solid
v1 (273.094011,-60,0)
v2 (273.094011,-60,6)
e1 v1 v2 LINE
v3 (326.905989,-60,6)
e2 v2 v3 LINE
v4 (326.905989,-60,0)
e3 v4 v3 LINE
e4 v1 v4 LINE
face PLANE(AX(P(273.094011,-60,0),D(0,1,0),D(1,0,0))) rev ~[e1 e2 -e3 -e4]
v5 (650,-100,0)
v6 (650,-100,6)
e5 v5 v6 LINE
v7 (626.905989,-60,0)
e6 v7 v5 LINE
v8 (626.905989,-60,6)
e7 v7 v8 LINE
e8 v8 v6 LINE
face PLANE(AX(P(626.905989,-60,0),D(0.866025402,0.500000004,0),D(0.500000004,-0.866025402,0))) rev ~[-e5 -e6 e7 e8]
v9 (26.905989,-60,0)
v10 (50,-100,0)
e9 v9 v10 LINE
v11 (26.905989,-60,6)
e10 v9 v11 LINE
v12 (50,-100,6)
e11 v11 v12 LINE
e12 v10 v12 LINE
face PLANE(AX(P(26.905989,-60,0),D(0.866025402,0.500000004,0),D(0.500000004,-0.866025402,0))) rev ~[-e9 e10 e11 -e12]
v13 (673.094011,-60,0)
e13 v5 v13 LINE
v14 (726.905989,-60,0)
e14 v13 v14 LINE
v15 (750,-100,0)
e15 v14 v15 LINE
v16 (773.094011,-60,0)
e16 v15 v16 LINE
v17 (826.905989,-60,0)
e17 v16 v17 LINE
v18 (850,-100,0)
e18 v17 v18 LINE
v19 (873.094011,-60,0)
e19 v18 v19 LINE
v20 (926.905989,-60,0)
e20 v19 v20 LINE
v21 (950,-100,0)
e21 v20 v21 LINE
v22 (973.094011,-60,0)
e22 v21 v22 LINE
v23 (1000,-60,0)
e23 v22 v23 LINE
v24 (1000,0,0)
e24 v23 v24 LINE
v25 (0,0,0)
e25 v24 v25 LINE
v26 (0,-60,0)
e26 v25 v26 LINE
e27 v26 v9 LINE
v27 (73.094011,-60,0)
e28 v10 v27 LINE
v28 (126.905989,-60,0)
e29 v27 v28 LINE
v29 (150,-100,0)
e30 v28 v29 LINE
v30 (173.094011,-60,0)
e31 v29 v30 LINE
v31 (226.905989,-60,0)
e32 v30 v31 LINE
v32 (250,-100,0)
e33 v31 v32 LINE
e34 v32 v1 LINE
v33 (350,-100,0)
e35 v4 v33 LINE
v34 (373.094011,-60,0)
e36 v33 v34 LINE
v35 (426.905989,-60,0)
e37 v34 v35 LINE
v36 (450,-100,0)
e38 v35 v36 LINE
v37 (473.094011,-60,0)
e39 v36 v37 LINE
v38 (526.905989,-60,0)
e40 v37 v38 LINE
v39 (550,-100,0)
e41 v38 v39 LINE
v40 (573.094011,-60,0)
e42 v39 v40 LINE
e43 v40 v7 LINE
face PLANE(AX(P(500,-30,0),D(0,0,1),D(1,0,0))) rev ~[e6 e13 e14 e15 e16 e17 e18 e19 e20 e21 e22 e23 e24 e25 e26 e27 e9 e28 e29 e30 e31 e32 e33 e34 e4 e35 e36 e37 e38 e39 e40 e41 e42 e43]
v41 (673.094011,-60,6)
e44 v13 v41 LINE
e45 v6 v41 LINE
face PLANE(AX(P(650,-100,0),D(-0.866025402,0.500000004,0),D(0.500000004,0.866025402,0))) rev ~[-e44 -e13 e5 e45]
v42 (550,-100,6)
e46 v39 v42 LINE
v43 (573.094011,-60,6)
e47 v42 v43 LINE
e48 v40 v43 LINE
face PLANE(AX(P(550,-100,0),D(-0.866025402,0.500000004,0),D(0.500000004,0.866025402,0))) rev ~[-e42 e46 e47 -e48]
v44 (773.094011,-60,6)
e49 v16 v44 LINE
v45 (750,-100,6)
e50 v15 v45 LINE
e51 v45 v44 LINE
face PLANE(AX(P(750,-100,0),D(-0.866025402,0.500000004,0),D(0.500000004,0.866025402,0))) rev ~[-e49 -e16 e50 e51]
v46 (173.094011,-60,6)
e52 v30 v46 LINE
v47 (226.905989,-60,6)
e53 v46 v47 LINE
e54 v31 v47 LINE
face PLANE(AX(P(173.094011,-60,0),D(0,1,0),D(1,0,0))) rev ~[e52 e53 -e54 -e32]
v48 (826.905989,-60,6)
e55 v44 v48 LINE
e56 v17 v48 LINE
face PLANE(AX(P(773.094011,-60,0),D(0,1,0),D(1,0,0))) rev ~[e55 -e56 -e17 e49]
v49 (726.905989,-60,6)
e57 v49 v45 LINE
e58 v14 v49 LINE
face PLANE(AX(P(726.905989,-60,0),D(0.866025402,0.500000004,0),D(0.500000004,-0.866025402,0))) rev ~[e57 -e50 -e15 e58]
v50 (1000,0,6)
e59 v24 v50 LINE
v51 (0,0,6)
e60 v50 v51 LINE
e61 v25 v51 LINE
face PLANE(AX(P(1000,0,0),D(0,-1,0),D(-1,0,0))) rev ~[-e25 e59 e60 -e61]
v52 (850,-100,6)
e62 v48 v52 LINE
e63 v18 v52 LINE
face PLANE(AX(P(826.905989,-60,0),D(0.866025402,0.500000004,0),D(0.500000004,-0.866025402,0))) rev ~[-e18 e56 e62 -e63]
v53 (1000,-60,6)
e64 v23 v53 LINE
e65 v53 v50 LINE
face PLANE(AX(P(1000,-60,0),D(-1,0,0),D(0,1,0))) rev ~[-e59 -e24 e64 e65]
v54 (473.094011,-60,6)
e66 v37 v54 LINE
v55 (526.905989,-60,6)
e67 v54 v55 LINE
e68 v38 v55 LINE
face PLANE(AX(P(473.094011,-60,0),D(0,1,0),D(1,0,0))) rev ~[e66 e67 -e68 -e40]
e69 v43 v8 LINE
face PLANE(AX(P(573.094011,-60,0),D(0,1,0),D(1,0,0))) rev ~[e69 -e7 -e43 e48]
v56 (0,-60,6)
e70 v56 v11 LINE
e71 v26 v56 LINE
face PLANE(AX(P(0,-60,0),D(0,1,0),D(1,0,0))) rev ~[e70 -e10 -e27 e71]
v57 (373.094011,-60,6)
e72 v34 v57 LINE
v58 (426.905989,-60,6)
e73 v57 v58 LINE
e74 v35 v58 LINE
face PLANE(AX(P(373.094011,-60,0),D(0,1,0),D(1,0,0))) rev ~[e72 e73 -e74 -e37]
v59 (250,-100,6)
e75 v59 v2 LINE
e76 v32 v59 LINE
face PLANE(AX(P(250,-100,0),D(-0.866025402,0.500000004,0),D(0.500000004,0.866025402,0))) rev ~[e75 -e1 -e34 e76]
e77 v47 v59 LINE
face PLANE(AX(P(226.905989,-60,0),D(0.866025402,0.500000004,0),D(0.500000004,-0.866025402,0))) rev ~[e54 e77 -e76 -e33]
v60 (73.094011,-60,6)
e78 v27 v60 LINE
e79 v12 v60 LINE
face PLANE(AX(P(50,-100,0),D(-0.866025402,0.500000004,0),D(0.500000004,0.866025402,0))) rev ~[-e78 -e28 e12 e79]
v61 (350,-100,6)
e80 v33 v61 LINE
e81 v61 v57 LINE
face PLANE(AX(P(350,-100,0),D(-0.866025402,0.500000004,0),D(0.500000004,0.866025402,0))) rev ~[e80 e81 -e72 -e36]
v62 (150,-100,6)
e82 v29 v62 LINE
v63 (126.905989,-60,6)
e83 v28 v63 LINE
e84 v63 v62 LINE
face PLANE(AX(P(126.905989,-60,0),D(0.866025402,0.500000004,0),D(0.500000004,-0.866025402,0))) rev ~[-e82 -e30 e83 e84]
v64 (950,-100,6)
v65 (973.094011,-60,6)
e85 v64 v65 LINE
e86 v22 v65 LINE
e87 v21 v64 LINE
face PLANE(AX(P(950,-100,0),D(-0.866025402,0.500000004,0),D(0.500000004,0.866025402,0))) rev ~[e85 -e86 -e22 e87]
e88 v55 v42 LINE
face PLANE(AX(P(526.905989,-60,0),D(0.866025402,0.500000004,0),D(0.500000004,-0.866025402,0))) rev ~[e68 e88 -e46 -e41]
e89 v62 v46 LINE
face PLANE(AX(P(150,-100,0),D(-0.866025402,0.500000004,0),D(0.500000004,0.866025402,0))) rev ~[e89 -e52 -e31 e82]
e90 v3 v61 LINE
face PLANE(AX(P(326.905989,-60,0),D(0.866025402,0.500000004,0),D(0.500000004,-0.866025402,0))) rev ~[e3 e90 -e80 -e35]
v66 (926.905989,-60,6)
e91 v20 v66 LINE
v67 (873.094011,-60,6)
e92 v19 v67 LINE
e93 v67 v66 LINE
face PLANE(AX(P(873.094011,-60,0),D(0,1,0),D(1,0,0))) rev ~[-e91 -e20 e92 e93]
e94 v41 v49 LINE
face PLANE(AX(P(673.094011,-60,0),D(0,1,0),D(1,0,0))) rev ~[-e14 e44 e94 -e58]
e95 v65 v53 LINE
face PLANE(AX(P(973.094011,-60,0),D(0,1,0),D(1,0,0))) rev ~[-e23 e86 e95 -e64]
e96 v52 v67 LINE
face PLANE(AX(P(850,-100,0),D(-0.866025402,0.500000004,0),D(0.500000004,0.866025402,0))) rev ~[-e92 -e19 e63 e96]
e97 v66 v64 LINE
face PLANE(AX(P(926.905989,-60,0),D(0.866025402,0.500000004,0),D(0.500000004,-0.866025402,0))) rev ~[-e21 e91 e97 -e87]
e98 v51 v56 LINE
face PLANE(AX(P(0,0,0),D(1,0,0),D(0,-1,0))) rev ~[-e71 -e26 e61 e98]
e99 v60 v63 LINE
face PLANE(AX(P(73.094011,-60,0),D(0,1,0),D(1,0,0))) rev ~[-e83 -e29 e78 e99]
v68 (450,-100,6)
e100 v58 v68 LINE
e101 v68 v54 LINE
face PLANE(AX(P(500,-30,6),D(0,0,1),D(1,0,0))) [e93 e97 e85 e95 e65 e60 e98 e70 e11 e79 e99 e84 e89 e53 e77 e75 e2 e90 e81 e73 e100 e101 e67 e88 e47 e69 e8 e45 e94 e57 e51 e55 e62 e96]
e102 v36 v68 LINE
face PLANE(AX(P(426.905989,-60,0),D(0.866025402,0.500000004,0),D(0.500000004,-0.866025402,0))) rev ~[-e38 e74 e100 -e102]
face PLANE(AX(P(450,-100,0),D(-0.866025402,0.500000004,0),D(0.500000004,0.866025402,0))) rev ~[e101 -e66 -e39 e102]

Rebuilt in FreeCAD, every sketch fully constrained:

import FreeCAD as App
import Part
import Sketcher
Q = App.Units.Quantity

doc = App.newDocument("Part")
body = doc.addObject("PartDesign::Body", "Body")

sketch1 = body.newObject("Sketcher::SketchObject", "Sketch")
sketch1.AttachmentSupport = (doc.getObject("XY_Plane"), [""])
sketch1.MapMode = "FlatFace"
sketch1.addGeometry(Part.LineSegment(App.Vector(1000, 0, 0), App.Vector(0, 0, 0)), False)
sketch1.addGeometry(Part.LineSegment(App.Vector(0, 0, 0), App.Vector(0, -60, 0)), False)
sketch1.addGeometry(Part.LineSegment(App.Vector(0, -60, 0), App.Vector(27, -60, 0)), False)
sketch1.addGeometry(Part.LineSegment(App.Vector(27, -60, 0), App.Vector(50, -100, 0)), False)
sketch1.addGeometry(Part.LineSegment(App.Vector(50, -100, 0), App.Vector(73, -60, 0)), False)
sketch1.addGeometry(Part.LineSegment(App.Vector(73, -60, 0), App.Vector(127, -60, 0)), False)
sketch1.addGeometry(Part.LineSegment(App.Vector(127, -60, 0), App.Vector(150, -100, 0)), False)
sketch1.addGeometry(Part.LineSegment(App.Vector(150, -100, 0), App.Vector(173, -60, 0)), False)
sketch1.addGeometry(Part.LineSegment(App.Vector(173, -60, 0), App.Vector(227, -60, 0)), False)
sketch1.addGeometry(Part.LineSegment(App.Vector(227, -60, 0), App.Vector(250, -100, 0)), False)
sketch1.addGeometry(Part.LineSegment(App.Vector(250, -100, 0), App.Vector(273, -60, 0)), False)
sketch1.addGeometry(Part.LineSegment(App.Vector(273, -60, 0), App.Vector(327, -60, 0)), False)
sketch1.addGeometry(Part.LineSegment(App.Vector(327, -60, 0), App.Vector(350, -100, 0)), False)
sketch1.addGeometry(Part.LineSegment(App.Vector(350, -100, 0), App.Vector(373, -60, 0)), False)
sketch1.addGeometry(Part.LineSegment(App.Vector(373, -60, 0), App.Vector(427, -60, 0)), False)
sketch1.addGeometry(Part.LineSegment(App.Vector(427, -60, 0), App.Vector(450, -100, 0)), False)
sketch1.addGeometry(Part.LineSegment(App.Vector(450, -100, 0), App.Vector(473, -60, 0)), False)
sketch1.addGeometry(Part.LineSegment(App.Vector(473, -60, 0), App.Vector(527, -60, 0)), False)
sketch1.addGeometry(Part.LineSegment(App.Vector(527, -60, 0), App.Vector(550, -100, 0)), False)
sketch1.addGeometry(Part.LineSegment(App.Vector(550, -100, 0), App.Vector(573, -60, 0)), False)
sketch1.addGeometry(Part.LineSegment(App.Vector(573, -60, 0), App.Vector(627, -60, 0)), False)
sketch1.addGeometry(Part.LineSegment(App.Vector(627, -60, 0), App.Vector(650, -100, 0)), False)
sketch1.addGeometry(Part.LineSegment(App.Vector(650, -100, 0), App.Vector(673, -60, 0)), False)
sketch1.addGeometry(Part.LineSegment(App.Vector(673, -60, 0), App.Vector(727, -60, 0)), False)
sketch1.addGeometry(Part.LineSegment(App.Vector(727, -60, 0), App.Vector(750, -100, 0)), False)
sketch1.addGeometry(Part.LineSegment(App.Vector(750, -100, 0), App.Vector(773, -60, 0)), False)
sketch1.addGeometry(Part.LineSegment(App.Vector(773, -60, 0), App.Vector(827, -60, 0)), False)
sketch1.addGeometry(Part.LineSegment(App.Vector(827, -60, 0), App.Vector(850, -100, 0)), False)
sketch1.addGeometry(Part.LineSegment(App.Vector(850, -100, 0), App.Vector(873, -60, 0)), False)
sketch1.addGeometry(Part.LineSegment(App.Vector(873, -60, 0), App.Vector(927, -60, 0)), False)
sketch1.addGeometry(Part.LineSegment(App.Vector(927, -60, 0), App.Vector(950, -100, 0)), False)
sketch1.addGeometry(Part.LineSegment(App.Vector(950, -100, 0), App.Vector(973, -60, 0)), False)
sketch1.addGeometry(Part.LineSegment(App.Vector(973, -60, 0), App.Vector(1000, -60, 0)), False)
sketch1.addGeometry(Part.LineSegment(App.Vector(1000, -60, 0), App.Vector(1000, 0, 0)), False)
sketch1.addConstraint(Sketcher.Constraint("Coincident", 0, 2, 1, 1))
sketch1.addConstraint(Sketcher.Constraint("Coincident", 1, 2, 2, 1))
sketch1.addConstraint(Sketcher.Constraint("Coincident", 2, 2, 3, 1))
sketch1.addConstraint(Sketcher.Constraint("Coincident", 3, 2, 4, 1))
sketch1.addConstraint(Sketcher.Constraint("Coincident", 4, 2, 5, 1))
sketch1.addConstraint(Sketcher.Constraint("Coincident", 5, 2, 6, 1))
sketch1.addConstraint(Sketcher.Constraint("Coincident", 6, 2, 7, 1))
sketch1.addConstraint(Sketcher.Constraint("Coincident", 7, 2, 8, 1))
sketch1.addConstraint(Sketcher.Constraint("Coincident", 8, 2, 9, 1))
sketch1.addConstraint(Sketcher.Constraint("Coincident", 9, 2, 10, 1))
sketch1.addConstraint(Sketcher.Constraint("Coincident", 10, 2, 11, 1))
sketch1.addConstraint(Sketcher.Constraint("Coincident", 11, 2, 12, 1))
sketch1.addConstraint(Sketcher.Constraint("Coincident", 12, 2, 13, 1))
sketch1.addConstraint(Sketcher.Constraint("Coincident", 13, 2, 14, 1))
sketch1.addConstraint(Sketcher.Constraint("Coincident", 14, 2, 15, 1))
sketch1.addConstraint(Sketcher.Constraint("Coincident", 15, 2, 16, 1))
sketch1.addConstraint(Sketcher.Constraint("Coincident", 16, 2, 17, 1))
sketch1.addConstraint(Sketcher.Constraint("Coincident", 17, 2, 18, 1))
sketch1.addConstraint(Sketcher.Constraint("Coincident", 18, 2, 19, 1))
sketch1.addConstraint(Sketcher.Constraint("Coincident", 19, 2, 20, 1))
sketch1.addConstraint(Sketcher.Constraint("Coincident", 20, 2, 21, 1))
sketch1.addConstraint(Sketcher.Constraint("Coincident", 21, 2, 22, 1))
sketch1.addConstraint(Sketcher.Constraint("Coincident", 22, 2, 23, 1))
sketch1.addConstraint(Sketcher.Constraint("Coincident", 23, 2, 24, 1))
sketch1.addConstraint(Sketcher.Constraint("Coincident", 24, 2, 25, 1))
sketch1.addConstraint(Sketcher.Constraint("Coincident", 25, 2, 26, 1))
sketch1.addConstraint(Sketcher.Constraint("Coincident", 26, 2, 27, 1))
sketch1.addConstraint(Sketcher.Constraint("Coincident", 27, 2, 28, 1))
sketch1.addConstraint(Sketcher.Constraint("Coincident", 28, 2, 29, 1))
sketch1.addConstraint(Sketcher.Constraint("Coincident", 29, 2, 30, 1))
sketch1.addConstraint(Sketcher.Constraint("Coincident", 30, 2, 31, 1))
sketch1.addConstraint(Sketcher.Constraint("Coincident", 31, 2, 32, 1))
sketch1.addConstraint(Sketcher.Constraint("Coincident", 32, 2, 33, 1))
sketch1.addConstraint(Sketcher.Constraint("Coincident", 33, 2, 0, 1))
sketch1.addConstraint(Sketcher.Constraint("Horizontal", 0))
sketch1.addConstraint(Sketcher.Constraint("Vertical", 1))
sketch1.addConstraint(Sketcher.Constraint("Horizontal", 2))
sketch1.addConstraint(Sketcher.Constraint("Horizontal", 5))
sketch1.addConstraint(Sketcher.Constraint("Horizontal", 8))
sketch1.addConstraint(Sketcher.Constraint("Horizontal", 11))
sketch1.addConstraint(Sketcher.Constraint("Horizontal", 14))
sketch1.addConstraint(Sketcher.Constraint("Horizontal", 17))
sketch1.addConstraint(Sketcher.Constraint("Horizontal", 20))
sketch1.addConstraint(Sketcher.Constraint("Horizontal", 23))
sketch1.addConstraint(Sketcher.Constraint("Horizontal", 26))
sketch1.addConstraint(Sketcher.Constraint("Horizontal", 29))
sketch1.addConstraint(Sketcher.Constraint("Horizontal", 32))
sketch1.addConstraint(Sketcher.Constraint("Vertical", 33))
sketch1.addConstraint(Sketcher.Constraint("Coincident", 0, 2, -1, 1))
sketch1.addConstraint(Sketcher.Constraint("Parallel", 3, 6))
sketch1.addConstraint(Sketcher.Constraint("Parallel", 4, 7))
sketch1.addConstraint(Sketcher.Constraint("Parallel", 6, 9))
sketch1.addConstraint(Sketcher.Constraint("Parallel", 7, 10))
sketch1.addConstraint(Sketcher.Constraint("Parallel", 9, 12))
sketch1.addConstraint(Sketcher.Constraint("Parallel", 10, 13))
sketch1.addConstraint(Sketcher.Constraint("Parallel", 12, 15))
sketch1.addConstraint(Sketcher.Constraint("Parallel", 13, 16))
sketch1.addConstraint(Sketcher.Constraint("Parallel", 15, 18))
sketch1.addConstraint(Sketcher.Constraint("Parallel", 16, 19))
sketch1.addConstraint(Sketcher.Constraint("Parallel", 18, 21))
sketch1.addConstraint(Sketcher.Constraint("Parallel", 19, 22))
sketch1.addConstraint(Sketcher.Constraint("Parallel", 21, 24))
sketch1.addConstraint(Sketcher.Constraint("Parallel", 22, 25))
sketch1.addConstraint(Sketcher.Constraint("Parallel", 24, 27))
sketch1.addConstraint(Sketcher.Constraint("Parallel", 25, 28))
sketch1.addConstraint(Sketcher.Constraint("Parallel", 27, 30))
sketch1.addConstraint(Sketcher.Constraint("Parallel", 28, 31))
sketch1.addConstraint(Sketcher.Constraint("Horizontal", 2, 2, 4, 2))
sketch1.addConstraint(Sketcher.Constraint("Horizontal", 3, 2, 6, 2))
sketch1.addConstraint(Sketcher.Constraint("Horizontal", 5, 2, 7, 2))
sketch1.addConstraint(Sketcher.Constraint("Horizontal", 6, 2, 9, 2))
sketch1.addConstraint(Sketcher.Constraint("Horizontal", 8, 2, 10, 2))
sketch1.addConstraint(Sketcher.Constraint("Horizontal", 9, 2, 12, 2))
sketch1.addConstraint(Sketcher.Constraint("Horizontal", 11, 2, 13, 2))
sketch1.addConstraint(Sketcher.Constraint("Horizontal", 12, 2, 15, 2))
sketch1.addConstraint(Sketcher.Constraint("Horizontal", 14, 2, 16, 2))
sketch1.addConstraint(Sketcher.Constraint("Horizontal", 15, 2, 18, 2))
sketch1.addConstraint(Sketcher.Constraint("Horizontal", 17, 2, 19, 2))
sketch1.addConstraint(Sketcher.Constraint("Horizontal", 18, 2, 21, 2))
sketch1.addConstraint(Sketcher.Constraint("Horizontal", 20, 2, 22, 2))
sketch1.addConstraint(Sketcher.Constraint("Horizontal", 21, 2, 24, 2))
sketch1.addConstraint(Sketcher.Constraint("Horizontal", 23, 2, 25, 2))
sketch1.addConstraint(Sketcher.Constraint("Horizontal", 24, 2, 27, 2))
sketch1.addConstraint(Sketcher.Constraint("Horizontal", 26, 2, 28, 2))
sketch1.addConstraint(Sketcher.Constraint("Horizontal", 27, 2, 30, 2))
sketch1.addConstraint(Sketcher.Constraint("Horizontal", 29, 2, 31, 2))
sketch1.addConstraint(Sketcher.Constraint("Equal", 5, 8))
sketch1.addConstraint(Sketcher.Constraint("Equal", 8, 11))
sketch1.addConstraint(Sketcher.Constraint("Equal", 11, 14))
sketch1.addConstraint(Sketcher.Constraint("Equal", 14, 17))
sketch1.addConstraint(Sketcher.Constraint("Equal", 17, 20))
sketch1.addConstraint(Sketcher.Constraint("Equal", 20, 23))
sketch1.addConstraint(Sketcher.Constraint("Equal", 23, 26))
sketch1.addConstraint(Sketcher.Constraint("Equal", 26, 29))
sketch1.addConstraint(Sketcher.Constraint("Equal", 2, 32))
sketch1.addConstraint(Sketcher.Constraint("Equal", 3, 4))
sketch1.addConstraint(Sketcher.Constraint("DistanceX", 0, 2, 0, 1, 1000.0))
sketch1.addConstraint(Sketcher.Constraint("DistanceY", 1, 2, 1, 1, 60.0))
sketch1.addConstraint(Sketcher.Constraint("Angle", 3, Q("-60 deg")))
sketch1.addConstraint(Sketcher.Constraint("DistanceX", -1, 1, 3, 2, 50.0))
sketch1.addConstraint(Sketcher.Constraint("DistanceY", 3, 2, -1, 1, 100.0))
pad1 = body.newObject("PartDesign::Pad", "Pad")
pad1.Profile = sketch1
pad1.Length = 6

doc.recompute()
